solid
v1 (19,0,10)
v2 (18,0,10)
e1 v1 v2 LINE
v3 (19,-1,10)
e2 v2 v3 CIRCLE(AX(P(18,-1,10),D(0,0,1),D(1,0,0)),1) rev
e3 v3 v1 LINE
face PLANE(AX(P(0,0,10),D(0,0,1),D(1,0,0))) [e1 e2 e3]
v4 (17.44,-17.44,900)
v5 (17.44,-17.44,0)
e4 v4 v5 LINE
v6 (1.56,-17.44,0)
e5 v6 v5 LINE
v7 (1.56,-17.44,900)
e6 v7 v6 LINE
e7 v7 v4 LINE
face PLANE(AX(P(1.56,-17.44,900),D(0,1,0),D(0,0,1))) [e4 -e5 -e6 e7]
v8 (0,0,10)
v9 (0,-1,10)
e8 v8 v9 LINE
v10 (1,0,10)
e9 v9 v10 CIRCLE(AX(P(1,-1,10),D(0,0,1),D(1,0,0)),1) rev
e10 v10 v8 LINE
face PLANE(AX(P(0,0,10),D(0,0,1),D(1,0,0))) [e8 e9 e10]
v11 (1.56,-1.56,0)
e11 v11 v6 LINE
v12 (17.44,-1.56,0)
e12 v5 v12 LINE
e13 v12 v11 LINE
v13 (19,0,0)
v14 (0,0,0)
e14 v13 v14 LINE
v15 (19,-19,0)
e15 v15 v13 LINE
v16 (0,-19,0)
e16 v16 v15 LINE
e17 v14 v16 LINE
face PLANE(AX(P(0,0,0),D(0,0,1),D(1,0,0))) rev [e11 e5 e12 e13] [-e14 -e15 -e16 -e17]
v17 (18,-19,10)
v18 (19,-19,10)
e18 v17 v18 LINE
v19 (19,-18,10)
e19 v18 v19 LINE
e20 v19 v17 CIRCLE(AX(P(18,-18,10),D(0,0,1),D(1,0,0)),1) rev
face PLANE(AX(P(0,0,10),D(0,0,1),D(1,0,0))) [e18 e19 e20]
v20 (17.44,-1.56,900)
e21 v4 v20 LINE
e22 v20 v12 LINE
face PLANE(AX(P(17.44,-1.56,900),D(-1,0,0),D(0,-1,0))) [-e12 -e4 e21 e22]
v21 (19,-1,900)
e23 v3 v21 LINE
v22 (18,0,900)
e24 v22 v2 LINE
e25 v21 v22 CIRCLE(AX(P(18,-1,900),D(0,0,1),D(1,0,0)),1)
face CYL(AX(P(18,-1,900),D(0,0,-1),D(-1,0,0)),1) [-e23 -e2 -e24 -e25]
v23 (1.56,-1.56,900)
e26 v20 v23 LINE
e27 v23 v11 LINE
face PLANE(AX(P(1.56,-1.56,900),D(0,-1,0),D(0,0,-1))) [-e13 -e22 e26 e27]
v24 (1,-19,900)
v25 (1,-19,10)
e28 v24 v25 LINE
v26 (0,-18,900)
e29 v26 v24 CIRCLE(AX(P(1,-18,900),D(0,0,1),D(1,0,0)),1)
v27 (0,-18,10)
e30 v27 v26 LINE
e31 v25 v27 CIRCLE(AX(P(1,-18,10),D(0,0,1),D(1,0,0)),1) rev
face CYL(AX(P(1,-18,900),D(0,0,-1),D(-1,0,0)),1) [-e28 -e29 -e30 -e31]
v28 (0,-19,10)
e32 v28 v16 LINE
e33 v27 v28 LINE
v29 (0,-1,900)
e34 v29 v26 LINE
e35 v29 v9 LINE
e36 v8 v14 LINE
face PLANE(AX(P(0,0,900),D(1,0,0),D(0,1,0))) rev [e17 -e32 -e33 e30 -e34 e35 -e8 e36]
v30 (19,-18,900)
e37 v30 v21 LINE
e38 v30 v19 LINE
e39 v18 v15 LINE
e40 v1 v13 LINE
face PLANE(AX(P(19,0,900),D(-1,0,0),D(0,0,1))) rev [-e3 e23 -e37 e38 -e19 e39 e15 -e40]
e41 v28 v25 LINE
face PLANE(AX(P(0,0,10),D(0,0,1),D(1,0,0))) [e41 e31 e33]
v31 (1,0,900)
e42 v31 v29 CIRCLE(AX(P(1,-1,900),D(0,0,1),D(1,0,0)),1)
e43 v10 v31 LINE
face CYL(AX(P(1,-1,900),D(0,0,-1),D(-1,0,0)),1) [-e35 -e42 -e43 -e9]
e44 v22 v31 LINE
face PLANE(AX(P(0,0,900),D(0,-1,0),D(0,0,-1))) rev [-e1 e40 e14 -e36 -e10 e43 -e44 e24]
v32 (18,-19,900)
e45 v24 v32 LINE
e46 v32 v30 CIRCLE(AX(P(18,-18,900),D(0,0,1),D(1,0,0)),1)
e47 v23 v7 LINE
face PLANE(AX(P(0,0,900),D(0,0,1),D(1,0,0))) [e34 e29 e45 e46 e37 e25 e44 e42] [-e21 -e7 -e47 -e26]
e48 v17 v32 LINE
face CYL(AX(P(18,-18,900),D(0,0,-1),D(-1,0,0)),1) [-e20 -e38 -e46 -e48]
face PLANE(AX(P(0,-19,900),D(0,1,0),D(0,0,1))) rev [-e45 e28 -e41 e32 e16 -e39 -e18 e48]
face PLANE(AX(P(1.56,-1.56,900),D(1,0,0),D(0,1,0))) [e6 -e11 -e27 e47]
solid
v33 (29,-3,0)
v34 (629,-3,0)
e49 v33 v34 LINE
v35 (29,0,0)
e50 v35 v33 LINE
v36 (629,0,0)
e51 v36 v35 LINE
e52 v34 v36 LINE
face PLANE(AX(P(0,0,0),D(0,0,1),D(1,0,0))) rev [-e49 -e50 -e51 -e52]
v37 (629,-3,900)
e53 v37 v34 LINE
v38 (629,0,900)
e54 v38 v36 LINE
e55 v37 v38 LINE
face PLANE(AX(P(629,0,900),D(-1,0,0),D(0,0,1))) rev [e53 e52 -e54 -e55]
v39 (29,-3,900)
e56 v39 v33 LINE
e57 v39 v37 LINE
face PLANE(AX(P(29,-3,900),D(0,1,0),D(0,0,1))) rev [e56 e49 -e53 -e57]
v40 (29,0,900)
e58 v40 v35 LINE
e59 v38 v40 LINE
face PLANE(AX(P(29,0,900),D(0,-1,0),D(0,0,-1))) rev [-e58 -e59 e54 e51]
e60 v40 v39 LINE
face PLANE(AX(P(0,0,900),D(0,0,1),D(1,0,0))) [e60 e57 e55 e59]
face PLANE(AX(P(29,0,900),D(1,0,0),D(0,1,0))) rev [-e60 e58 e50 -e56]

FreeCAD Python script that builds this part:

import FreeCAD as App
import Part
import Sketcher


def edges_at(feature, points):
    """Names of the edges that pass closest to the given points."""
    edges = feature.Shape.Edges
    near = lambda p: min(range(len(edges)), key=lambda i: edges[i].distToShape(Part.Vertex(*p))[0])
    return sorted({f"Edge{near(p) + 1}" for p in points})

doc = App.newDocument("Part")
body = doc.addObject("PartDesign::Body", "Body")

# Sketch on XY plane
sketch1 = body.newObject("Sketcher::SketchObject", "Sketch")
sketch1.AttachmentSupport = (doc.getObject("XY_Plane"), [""])
sketch1.MapMode = "FlatFace"
sketch1.addGeometry([
    Part.LineSegment(App.Vector(0, 0, 0), App.Vector(0, -19, 0)),  # 0
    Part.LineSegment(App.Vector(0, -19, 0), App.Vector(19, -19, 0)),  # 1
    Part.LineSegment(App.Vector(19, -19, 0), App.Vector(19, 0, 0)),  # 2
    Part.LineSegment(App.Vector(19, 0, 0), App.Vector(0, 0, 0)),  # 3
    Part.LineSegment(App.Vector(17, -17, 0), App.Vector(2, -17, 0)),  # 4
    Part.LineSegment(App.Vector(2, -17, 0), App.Vector(2, -2, 0)),  # 5
    Part.LineSegment(App.Vector(2, -2, 0), App.Vector(17, -2, 0)),  # 6
    Part.LineSegment(App.Vector(17, -2, 0), App.Vector(17, -17, 0)),  # 7
], False)
sketch1.addConstraint([
    Sketcher.Constraint("Coincident", 0, 2, 1, 1),
    Sketcher.Constraint("Coincident", 1, 2, 2, 1),
    Sketcher.Constraint("Coincident", 2, 2, 3, 1),
    Sketcher.Constraint("Coincident", 3, 2, 0, 1),
    Sketcher.Constraint("Coincident", 4, 2, 5, 1),
    Sketcher.Constraint("Coincident", 5, 2, 6, 1),
    Sketcher.Constraint("Coincident", 6, 2, 7, 1),
    Sketcher.Constraint("Coincident", 7, 2, 4, 1),
    Sketcher.Constraint("Vertical", 0),
    Sketcher.Constraint("Horizontal", 1),
    Sketcher.Constraint("Vertical", 2),
    Sketcher.Constraint("Horizontal", 3),
    Sketcher.Constraint("Horizontal", 4),
    Sketcher.Constraint("Vertical", 5),
    Sketcher.Constraint("Horizontal", 6),
    Sketcher.Constraint("Vertical", 7),
    Sketcher.Constraint("Coincident", 3, 2, -1, 1),
    Sketcher.Constraint("Equal", 3, 0),
    Sketcher.Constraint("Equal", 6, 5),
    Sketcher.Constraint("DistanceX", 1, 1, 1, 2, 19.0),
    Sketcher.Constraint("DistanceX", 4, 2, 4, 1, 15.88),
    Sketcher.Constraint("DistanceX", -1, 1, 4, 2, 1.56),
    Sketcher.Constraint("DistanceY", 4, 2, -1, 1, 17.44),
])
pad1 = body.newObject("PartDesign::Pad", "Pad")
pad1.Profile = sketch1
pad1.Length = 900
doc.recompute()

fillet = body.newObject("PartDesign::Fillet", "Fillet")
fillet.Base = (pad1, edges_at(pad1, [
    (0, 0, 450),
    (19, 0, 450),
    (19, -19, 450),
    (0, -19, 450),
]))
fillet.Radius = 1
body2 = doc.addObject("PartDesign::Body", "Body001")

# Sketch on XY plane
sketch2 = body2.newObject("Sketcher::SketchObject", "Sketch001")
sketch2.AttachmentSupport = (doc.getObject("XY_Plane001"), [""])
sketch2.MapMode = "FlatFace"
sketch2.addGeometry([
    Part.LineSegment(App.Vector(29, 0, 0), App.Vector(29, -3, 0)),
    Part.LineSegment(App.Vector(29, -3, 0), App.Vector(629, -3, 0)),
    Part.LineSegment(App.Vector(629, -3, 0), App.Vector(629, 0, 0)),
    Part.LineSegment(App.Vector(629, 0, 0), App.Vector(29, 0, 0)),
], False)
sketch2.addConstraint([
    Sketcher.Constraint("Coincident", 0, 2, 1, 1),
    Sketcher.Constraint("Coincident", 1, 2, 2, 1),
    Sketcher.Constraint("Coincident", 2, 2, 3, 1),
    Sketcher.Constraint("Coincident", 3, 2, 0, 1),
    Sketcher.Constraint("Vertical", 0),
    Sketcher.Constraint("Horizontal", 1),
    Sketcher.Constraint("Vertical", 2),
    Sketcher.Constraint("Horizontal", 3),
    Sketcher.Constraint("PointOnObject", 2, 2, -1),
    Sketcher.Constraint("DistanceX", 1, 1, 1, 2, 600.0),
    Sketcher.Constraint("DistanceY", 0, 2, 0, 1, 3.0),
    Sketcher.Constraint("DistanceX", -1, 1, 0, 2, 29.0),
])
pad2 = body2.newObject("PartDesign::Pad", "Pad001")
pad2.Profile = sketch2
pad2.Length = 900
body.AllowCompound = True
doc.recompute()

boolean = body.newObject("PartDesign::Boolean", "Boolean")
boolean.Type = "Fuse"
boolean.addObjects([body2])

# Sketch on XY plane
sketch3 = body.newObject("Sketcher::SketchObject", "Sketch002")
sketch3.AttachmentSupport = (doc.getObject("XY_Plane"), [""])
sketch3.MapMode = "FlatFace"
sketch3.addGeometry([
    Part.LineSegment(App.Vector(0, 0, 0), App.Vector(0, -19, 0)),  # 0
    Part.LineSegment(App.Vector(0, -19, 0), App.Vector(19, -19, 0)),  # 1
    Part.LineSegment(App.Vector(19, -19, 0), App.Vector(19, 0, 0)),  # 2
    Part.LineSegment(App.Vector(19, 0, 0), App.Vector(0, 0, 0)),  # 3
    Part.LineSegment(App.Vector(17.4, -17.4, 0), App.Vector(1.6, -17.4, 0)),  # 4
    Part.LineSegment(App.Vector(1.6, -17.4, 0), App.Vector(1.6, -1.6, 0)),  # 5
    Part.LineSegment(App.Vector(1.6, -1.6, 0), App.Vector(17.4, -1.6, 0)),  # 6
    Part.LineSegment(App.Vector(17.4, -1.6, 0), App.Vector(17.4, -17.4, 0)),  # 7
    Part.LineSegment(App.Vector(29, 0, 0), App.Vector(29, -3, 0)),  # 8
    Part.LineSegment(App.Vector(29, -3, 0), App.Vector(629, -3, 0)),  # 9
    Part.LineSegment(App.Vector(629, -3, 0), App.Vector(629, 0, 0)),  # 10
    Part.LineSegment(App.Vector(629, 0, 0), App.Vector(29, 0, 0)),  # 11
], False)
sketch3.addConstraint([
    Sketcher.Constraint("Coincident", 0, 2, 1, 1),
    Sketcher.Constraint("Coincident", 1, 2, 2, 1),
    Sketcher.Constraint("Coincident", 2, 2, 3, 1),
    Sketcher.Constraint("Coincident", 3, 2, 0, 1),
    Sketcher.Constraint("Coincident", 4, 2, 5, 1),
    Sketcher.Constraint("Coincident", 5, 2, 6, 1),
    Sketcher.Constraint("Coincident", 6, 2, 7, 1),
    Sketcher.Constraint("Coincident", 7, 2, 4, 1),
    Sketcher.Constraint("Coincident", 8, 2, 9, 1),
    Sketcher.Constraint("Coincident", 9, 2, 10, 1),
    Sketcher.Constraint("Coincident", 10, 2, 11, 1),
    Sketcher.Constraint("Coincident", 11, 2, 8, 1),
    Sketcher.Constraint("Vertical", 0),
    Sketcher.Constraint("Horizontal", 1),
    Sketcher.Constraint("Vertical", 2),
    Sketcher.Constraint("Horizontal", 3),
    Sketcher.Constraint("Horizontal", 4),
    Sketcher.Constraint("Vertical", 5),
    Sketcher.Constraint("Horizontal", 6),
    Sketcher.Constraint("Vertical", 7),
    Sketcher.Constraint("Vertical", 8),
    Sketcher.Constraint("Horizontal", 9),
    Sketcher.Constraint("Vertical", 10),
    Sketcher.Constraint("Horizontal", 11),
    Sketcher.Constraint("Coincident", 3, 2, -1, 1),
    Sketcher.Constraint("PointOnObject", 10, 2, -1),
    Sketcher.Constraint("Equal", 3, 0),
    Sketcher.Constraint("Equal", 6, 5),
    Sketcher.Constraint("DistanceX", 1, 1, 1, 2, 19.0),
    Sketcher.Constraint("DistanceX", 9, 1, 9, 2, 600.0),
    Sketcher.Constraint("DistanceY", 8, 2, 8, 1, 3.0),
    Sketcher.Constraint("DistanceX", -1, 1, 8, 2, 29.0),
    Sketcher.Constraint("DistanceX", 4, 2, 4, 1, 15.88),
    Sketcher.Constraint("DistanceX", -1, 1, 4, 2, 1.56),
    Sketcher.Constraint("DistanceY", 4, 2, -1, 1, 17.44),
])
pad3 = body.newObject("PartDesign::Pad", "Pad002")
pad3.Profile = sketch3
pad3.Length = 10

doc.recompute()
